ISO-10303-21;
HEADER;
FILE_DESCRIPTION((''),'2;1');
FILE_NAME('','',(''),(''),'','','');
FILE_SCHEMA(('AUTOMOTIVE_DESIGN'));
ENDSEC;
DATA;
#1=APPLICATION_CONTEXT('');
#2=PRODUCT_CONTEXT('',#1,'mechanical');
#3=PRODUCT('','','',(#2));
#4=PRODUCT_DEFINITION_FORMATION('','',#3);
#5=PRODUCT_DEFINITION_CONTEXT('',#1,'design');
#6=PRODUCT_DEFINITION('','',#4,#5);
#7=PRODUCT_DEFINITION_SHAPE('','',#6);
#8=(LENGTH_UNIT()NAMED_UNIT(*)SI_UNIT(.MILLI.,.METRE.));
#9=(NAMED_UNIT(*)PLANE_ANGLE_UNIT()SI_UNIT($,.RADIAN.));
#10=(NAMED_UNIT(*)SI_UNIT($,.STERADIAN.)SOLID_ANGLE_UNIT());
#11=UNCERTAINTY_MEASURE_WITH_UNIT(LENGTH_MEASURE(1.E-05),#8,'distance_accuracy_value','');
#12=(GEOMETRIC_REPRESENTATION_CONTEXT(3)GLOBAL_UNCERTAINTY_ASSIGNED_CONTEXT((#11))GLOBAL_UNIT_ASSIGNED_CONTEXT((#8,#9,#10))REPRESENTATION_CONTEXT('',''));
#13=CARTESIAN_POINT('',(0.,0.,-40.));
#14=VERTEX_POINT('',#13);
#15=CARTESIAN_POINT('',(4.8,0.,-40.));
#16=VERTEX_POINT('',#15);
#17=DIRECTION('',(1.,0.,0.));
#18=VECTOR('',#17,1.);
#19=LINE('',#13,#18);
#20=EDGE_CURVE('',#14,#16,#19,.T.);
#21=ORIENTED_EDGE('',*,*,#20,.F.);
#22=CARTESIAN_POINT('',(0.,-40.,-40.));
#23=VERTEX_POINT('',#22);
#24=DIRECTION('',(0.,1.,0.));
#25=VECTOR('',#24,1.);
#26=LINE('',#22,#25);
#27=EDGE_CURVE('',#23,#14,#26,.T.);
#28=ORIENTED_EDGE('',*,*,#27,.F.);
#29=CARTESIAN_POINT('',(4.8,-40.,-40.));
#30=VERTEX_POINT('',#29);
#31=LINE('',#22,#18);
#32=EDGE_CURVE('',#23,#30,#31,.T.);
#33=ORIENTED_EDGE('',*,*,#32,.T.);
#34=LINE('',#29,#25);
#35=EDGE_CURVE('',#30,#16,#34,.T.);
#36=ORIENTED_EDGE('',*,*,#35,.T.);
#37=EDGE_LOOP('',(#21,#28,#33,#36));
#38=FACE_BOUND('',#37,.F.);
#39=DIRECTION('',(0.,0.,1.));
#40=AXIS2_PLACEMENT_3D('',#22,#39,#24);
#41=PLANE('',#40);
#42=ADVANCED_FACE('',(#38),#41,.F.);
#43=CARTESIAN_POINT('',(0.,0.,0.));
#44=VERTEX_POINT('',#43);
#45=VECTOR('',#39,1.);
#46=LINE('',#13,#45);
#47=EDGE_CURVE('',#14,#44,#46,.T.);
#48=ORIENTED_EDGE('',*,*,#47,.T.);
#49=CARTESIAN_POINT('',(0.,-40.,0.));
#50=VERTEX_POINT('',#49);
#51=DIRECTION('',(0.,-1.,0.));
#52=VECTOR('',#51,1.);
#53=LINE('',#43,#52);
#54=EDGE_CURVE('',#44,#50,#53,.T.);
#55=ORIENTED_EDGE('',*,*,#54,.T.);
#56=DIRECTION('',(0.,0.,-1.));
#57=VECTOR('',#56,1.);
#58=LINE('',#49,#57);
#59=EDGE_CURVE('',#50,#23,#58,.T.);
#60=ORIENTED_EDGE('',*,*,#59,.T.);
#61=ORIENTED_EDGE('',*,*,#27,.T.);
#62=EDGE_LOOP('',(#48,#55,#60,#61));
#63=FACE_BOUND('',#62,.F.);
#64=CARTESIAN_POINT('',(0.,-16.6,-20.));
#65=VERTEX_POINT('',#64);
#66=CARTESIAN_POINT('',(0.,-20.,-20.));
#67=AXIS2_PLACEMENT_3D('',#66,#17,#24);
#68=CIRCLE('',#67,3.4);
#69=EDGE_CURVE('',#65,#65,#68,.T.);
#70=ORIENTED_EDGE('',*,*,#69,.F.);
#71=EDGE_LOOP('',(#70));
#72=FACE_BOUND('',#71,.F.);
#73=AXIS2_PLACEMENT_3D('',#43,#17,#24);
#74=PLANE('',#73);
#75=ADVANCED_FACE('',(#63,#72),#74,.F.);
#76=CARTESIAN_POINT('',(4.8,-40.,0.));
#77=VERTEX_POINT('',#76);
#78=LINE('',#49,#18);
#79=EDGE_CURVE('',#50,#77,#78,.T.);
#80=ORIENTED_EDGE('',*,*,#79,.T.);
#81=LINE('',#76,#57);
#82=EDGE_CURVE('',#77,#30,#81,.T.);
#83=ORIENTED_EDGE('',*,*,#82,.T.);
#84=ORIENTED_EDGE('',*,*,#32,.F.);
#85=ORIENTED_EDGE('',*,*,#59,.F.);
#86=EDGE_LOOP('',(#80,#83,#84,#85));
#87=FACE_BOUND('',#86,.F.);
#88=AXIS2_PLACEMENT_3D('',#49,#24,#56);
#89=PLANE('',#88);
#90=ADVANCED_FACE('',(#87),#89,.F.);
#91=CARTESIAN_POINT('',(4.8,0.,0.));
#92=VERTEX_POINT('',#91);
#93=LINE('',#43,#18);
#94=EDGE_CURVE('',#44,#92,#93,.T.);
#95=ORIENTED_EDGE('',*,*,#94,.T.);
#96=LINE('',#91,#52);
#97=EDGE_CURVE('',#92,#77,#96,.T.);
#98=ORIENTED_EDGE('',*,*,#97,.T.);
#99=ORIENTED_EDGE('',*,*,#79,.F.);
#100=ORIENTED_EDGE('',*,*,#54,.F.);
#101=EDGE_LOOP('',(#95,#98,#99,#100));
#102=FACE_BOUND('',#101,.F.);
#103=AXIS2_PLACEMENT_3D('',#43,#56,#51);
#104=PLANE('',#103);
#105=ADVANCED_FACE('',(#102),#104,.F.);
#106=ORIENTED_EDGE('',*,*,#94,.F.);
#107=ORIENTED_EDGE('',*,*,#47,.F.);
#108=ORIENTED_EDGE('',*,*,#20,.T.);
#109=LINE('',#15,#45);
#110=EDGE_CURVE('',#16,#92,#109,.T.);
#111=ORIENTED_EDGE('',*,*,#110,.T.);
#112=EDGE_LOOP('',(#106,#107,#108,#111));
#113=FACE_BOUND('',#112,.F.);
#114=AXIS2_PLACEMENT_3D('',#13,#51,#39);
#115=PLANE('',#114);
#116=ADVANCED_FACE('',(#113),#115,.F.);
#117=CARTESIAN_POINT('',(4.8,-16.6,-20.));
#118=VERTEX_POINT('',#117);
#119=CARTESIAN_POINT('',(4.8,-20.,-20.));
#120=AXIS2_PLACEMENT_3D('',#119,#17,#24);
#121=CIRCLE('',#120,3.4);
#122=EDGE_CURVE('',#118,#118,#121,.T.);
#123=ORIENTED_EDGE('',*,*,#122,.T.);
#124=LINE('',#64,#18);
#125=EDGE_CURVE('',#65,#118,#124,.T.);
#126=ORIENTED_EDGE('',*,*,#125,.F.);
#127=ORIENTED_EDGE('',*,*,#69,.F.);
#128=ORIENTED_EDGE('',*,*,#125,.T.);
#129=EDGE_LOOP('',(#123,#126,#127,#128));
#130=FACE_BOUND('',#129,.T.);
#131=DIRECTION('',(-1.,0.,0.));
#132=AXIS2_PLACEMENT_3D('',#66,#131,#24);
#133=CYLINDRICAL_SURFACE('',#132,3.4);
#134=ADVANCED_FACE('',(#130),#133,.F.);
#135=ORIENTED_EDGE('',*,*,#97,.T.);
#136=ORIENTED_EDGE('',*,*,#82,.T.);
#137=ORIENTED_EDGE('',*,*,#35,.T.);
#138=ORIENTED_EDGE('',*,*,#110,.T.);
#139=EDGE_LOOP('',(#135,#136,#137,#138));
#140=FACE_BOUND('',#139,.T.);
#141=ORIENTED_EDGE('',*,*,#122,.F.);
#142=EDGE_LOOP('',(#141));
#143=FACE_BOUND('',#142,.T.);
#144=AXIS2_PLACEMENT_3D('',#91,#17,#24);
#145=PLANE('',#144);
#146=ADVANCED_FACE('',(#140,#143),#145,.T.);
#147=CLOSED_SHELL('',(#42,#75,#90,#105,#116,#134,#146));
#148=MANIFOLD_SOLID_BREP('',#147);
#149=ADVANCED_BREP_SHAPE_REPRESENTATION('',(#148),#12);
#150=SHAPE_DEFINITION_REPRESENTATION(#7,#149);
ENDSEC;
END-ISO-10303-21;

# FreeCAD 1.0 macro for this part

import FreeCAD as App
import Part
import Sketcher

doc = App.newDocument("Part")
body = doc.addObject("PartDesign::Body", "Body")

# Sketch on YZ plane
sketch1 = doc.addObject("Sketcher::SketchObject", "Sketch")
body.addObject(sketch1)
sketch1.AttachmentSupport = (doc.YZ_Plane, [""])
sketch1.MapMode = "FlatFace"
sketch1.addGeometry([
    Part.LineSegment(App.Vector(0, -40, 0), App.Vector(0, 0, 0)),  # 0
    Part.LineSegment(App.Vector(0, 0, 0), App.Vector(-40, 0, 0)),  # 1
    Part.LineSegment(App.Vector(-40, 0, 0), App.Vector(-40, -40, 0)),  # 2
    Part.LineSegment(App.Vector(-40, -40, 0), App.Vector(0, -40, 0)),  # 3
    Part.Circle(App.Vector(-20, -20, 0), App.Vector(0, 0, 1), 3.4),  # 4
], False)
sketch1.addConstraint([
    Sketcher.Constraint("Coincident", 0, 2, 1, 1),
    Sketcher.Constraint("Coincident", 1, 2, 2, 1),
    Sketcher.Constraint("Coincident", 2, 2, 3, 1),
    Sketcher.Constraint("Coincident", 3, 2, 0, 1),
    Sketcher.Constraint("Vertical", 0),
    Sketcher.Constraint("Horizontal", 1),
    Sketcher.Constraint("Vertical", 2),
    Sketcher.Constraint("Horizontal", 3),
    Sketcher.Constraint("Coincident", 0, 2, -1, 1),
    Sketcher.Constraint("Equal", 3, 0),
    Sketcher.Constraint("Diameter", 4, 6.8),
    Sketcher.Constraint("DistanceX", 1, 2, 1, 1, 40.0),
    Sketcher.Constraint("DistanceX", 4, 3, -1, 1, 20.0),
    Sketcher.Constraint("DistanceY", 4, 3, -1, 1, 20.0),
])
pad1 = doc.addObject("PartDesign::Pad", "Pad")
body.addObject(pad1)
pad1.Profile = sketch1
pad1.Length = 4.8

doc.recompute()
